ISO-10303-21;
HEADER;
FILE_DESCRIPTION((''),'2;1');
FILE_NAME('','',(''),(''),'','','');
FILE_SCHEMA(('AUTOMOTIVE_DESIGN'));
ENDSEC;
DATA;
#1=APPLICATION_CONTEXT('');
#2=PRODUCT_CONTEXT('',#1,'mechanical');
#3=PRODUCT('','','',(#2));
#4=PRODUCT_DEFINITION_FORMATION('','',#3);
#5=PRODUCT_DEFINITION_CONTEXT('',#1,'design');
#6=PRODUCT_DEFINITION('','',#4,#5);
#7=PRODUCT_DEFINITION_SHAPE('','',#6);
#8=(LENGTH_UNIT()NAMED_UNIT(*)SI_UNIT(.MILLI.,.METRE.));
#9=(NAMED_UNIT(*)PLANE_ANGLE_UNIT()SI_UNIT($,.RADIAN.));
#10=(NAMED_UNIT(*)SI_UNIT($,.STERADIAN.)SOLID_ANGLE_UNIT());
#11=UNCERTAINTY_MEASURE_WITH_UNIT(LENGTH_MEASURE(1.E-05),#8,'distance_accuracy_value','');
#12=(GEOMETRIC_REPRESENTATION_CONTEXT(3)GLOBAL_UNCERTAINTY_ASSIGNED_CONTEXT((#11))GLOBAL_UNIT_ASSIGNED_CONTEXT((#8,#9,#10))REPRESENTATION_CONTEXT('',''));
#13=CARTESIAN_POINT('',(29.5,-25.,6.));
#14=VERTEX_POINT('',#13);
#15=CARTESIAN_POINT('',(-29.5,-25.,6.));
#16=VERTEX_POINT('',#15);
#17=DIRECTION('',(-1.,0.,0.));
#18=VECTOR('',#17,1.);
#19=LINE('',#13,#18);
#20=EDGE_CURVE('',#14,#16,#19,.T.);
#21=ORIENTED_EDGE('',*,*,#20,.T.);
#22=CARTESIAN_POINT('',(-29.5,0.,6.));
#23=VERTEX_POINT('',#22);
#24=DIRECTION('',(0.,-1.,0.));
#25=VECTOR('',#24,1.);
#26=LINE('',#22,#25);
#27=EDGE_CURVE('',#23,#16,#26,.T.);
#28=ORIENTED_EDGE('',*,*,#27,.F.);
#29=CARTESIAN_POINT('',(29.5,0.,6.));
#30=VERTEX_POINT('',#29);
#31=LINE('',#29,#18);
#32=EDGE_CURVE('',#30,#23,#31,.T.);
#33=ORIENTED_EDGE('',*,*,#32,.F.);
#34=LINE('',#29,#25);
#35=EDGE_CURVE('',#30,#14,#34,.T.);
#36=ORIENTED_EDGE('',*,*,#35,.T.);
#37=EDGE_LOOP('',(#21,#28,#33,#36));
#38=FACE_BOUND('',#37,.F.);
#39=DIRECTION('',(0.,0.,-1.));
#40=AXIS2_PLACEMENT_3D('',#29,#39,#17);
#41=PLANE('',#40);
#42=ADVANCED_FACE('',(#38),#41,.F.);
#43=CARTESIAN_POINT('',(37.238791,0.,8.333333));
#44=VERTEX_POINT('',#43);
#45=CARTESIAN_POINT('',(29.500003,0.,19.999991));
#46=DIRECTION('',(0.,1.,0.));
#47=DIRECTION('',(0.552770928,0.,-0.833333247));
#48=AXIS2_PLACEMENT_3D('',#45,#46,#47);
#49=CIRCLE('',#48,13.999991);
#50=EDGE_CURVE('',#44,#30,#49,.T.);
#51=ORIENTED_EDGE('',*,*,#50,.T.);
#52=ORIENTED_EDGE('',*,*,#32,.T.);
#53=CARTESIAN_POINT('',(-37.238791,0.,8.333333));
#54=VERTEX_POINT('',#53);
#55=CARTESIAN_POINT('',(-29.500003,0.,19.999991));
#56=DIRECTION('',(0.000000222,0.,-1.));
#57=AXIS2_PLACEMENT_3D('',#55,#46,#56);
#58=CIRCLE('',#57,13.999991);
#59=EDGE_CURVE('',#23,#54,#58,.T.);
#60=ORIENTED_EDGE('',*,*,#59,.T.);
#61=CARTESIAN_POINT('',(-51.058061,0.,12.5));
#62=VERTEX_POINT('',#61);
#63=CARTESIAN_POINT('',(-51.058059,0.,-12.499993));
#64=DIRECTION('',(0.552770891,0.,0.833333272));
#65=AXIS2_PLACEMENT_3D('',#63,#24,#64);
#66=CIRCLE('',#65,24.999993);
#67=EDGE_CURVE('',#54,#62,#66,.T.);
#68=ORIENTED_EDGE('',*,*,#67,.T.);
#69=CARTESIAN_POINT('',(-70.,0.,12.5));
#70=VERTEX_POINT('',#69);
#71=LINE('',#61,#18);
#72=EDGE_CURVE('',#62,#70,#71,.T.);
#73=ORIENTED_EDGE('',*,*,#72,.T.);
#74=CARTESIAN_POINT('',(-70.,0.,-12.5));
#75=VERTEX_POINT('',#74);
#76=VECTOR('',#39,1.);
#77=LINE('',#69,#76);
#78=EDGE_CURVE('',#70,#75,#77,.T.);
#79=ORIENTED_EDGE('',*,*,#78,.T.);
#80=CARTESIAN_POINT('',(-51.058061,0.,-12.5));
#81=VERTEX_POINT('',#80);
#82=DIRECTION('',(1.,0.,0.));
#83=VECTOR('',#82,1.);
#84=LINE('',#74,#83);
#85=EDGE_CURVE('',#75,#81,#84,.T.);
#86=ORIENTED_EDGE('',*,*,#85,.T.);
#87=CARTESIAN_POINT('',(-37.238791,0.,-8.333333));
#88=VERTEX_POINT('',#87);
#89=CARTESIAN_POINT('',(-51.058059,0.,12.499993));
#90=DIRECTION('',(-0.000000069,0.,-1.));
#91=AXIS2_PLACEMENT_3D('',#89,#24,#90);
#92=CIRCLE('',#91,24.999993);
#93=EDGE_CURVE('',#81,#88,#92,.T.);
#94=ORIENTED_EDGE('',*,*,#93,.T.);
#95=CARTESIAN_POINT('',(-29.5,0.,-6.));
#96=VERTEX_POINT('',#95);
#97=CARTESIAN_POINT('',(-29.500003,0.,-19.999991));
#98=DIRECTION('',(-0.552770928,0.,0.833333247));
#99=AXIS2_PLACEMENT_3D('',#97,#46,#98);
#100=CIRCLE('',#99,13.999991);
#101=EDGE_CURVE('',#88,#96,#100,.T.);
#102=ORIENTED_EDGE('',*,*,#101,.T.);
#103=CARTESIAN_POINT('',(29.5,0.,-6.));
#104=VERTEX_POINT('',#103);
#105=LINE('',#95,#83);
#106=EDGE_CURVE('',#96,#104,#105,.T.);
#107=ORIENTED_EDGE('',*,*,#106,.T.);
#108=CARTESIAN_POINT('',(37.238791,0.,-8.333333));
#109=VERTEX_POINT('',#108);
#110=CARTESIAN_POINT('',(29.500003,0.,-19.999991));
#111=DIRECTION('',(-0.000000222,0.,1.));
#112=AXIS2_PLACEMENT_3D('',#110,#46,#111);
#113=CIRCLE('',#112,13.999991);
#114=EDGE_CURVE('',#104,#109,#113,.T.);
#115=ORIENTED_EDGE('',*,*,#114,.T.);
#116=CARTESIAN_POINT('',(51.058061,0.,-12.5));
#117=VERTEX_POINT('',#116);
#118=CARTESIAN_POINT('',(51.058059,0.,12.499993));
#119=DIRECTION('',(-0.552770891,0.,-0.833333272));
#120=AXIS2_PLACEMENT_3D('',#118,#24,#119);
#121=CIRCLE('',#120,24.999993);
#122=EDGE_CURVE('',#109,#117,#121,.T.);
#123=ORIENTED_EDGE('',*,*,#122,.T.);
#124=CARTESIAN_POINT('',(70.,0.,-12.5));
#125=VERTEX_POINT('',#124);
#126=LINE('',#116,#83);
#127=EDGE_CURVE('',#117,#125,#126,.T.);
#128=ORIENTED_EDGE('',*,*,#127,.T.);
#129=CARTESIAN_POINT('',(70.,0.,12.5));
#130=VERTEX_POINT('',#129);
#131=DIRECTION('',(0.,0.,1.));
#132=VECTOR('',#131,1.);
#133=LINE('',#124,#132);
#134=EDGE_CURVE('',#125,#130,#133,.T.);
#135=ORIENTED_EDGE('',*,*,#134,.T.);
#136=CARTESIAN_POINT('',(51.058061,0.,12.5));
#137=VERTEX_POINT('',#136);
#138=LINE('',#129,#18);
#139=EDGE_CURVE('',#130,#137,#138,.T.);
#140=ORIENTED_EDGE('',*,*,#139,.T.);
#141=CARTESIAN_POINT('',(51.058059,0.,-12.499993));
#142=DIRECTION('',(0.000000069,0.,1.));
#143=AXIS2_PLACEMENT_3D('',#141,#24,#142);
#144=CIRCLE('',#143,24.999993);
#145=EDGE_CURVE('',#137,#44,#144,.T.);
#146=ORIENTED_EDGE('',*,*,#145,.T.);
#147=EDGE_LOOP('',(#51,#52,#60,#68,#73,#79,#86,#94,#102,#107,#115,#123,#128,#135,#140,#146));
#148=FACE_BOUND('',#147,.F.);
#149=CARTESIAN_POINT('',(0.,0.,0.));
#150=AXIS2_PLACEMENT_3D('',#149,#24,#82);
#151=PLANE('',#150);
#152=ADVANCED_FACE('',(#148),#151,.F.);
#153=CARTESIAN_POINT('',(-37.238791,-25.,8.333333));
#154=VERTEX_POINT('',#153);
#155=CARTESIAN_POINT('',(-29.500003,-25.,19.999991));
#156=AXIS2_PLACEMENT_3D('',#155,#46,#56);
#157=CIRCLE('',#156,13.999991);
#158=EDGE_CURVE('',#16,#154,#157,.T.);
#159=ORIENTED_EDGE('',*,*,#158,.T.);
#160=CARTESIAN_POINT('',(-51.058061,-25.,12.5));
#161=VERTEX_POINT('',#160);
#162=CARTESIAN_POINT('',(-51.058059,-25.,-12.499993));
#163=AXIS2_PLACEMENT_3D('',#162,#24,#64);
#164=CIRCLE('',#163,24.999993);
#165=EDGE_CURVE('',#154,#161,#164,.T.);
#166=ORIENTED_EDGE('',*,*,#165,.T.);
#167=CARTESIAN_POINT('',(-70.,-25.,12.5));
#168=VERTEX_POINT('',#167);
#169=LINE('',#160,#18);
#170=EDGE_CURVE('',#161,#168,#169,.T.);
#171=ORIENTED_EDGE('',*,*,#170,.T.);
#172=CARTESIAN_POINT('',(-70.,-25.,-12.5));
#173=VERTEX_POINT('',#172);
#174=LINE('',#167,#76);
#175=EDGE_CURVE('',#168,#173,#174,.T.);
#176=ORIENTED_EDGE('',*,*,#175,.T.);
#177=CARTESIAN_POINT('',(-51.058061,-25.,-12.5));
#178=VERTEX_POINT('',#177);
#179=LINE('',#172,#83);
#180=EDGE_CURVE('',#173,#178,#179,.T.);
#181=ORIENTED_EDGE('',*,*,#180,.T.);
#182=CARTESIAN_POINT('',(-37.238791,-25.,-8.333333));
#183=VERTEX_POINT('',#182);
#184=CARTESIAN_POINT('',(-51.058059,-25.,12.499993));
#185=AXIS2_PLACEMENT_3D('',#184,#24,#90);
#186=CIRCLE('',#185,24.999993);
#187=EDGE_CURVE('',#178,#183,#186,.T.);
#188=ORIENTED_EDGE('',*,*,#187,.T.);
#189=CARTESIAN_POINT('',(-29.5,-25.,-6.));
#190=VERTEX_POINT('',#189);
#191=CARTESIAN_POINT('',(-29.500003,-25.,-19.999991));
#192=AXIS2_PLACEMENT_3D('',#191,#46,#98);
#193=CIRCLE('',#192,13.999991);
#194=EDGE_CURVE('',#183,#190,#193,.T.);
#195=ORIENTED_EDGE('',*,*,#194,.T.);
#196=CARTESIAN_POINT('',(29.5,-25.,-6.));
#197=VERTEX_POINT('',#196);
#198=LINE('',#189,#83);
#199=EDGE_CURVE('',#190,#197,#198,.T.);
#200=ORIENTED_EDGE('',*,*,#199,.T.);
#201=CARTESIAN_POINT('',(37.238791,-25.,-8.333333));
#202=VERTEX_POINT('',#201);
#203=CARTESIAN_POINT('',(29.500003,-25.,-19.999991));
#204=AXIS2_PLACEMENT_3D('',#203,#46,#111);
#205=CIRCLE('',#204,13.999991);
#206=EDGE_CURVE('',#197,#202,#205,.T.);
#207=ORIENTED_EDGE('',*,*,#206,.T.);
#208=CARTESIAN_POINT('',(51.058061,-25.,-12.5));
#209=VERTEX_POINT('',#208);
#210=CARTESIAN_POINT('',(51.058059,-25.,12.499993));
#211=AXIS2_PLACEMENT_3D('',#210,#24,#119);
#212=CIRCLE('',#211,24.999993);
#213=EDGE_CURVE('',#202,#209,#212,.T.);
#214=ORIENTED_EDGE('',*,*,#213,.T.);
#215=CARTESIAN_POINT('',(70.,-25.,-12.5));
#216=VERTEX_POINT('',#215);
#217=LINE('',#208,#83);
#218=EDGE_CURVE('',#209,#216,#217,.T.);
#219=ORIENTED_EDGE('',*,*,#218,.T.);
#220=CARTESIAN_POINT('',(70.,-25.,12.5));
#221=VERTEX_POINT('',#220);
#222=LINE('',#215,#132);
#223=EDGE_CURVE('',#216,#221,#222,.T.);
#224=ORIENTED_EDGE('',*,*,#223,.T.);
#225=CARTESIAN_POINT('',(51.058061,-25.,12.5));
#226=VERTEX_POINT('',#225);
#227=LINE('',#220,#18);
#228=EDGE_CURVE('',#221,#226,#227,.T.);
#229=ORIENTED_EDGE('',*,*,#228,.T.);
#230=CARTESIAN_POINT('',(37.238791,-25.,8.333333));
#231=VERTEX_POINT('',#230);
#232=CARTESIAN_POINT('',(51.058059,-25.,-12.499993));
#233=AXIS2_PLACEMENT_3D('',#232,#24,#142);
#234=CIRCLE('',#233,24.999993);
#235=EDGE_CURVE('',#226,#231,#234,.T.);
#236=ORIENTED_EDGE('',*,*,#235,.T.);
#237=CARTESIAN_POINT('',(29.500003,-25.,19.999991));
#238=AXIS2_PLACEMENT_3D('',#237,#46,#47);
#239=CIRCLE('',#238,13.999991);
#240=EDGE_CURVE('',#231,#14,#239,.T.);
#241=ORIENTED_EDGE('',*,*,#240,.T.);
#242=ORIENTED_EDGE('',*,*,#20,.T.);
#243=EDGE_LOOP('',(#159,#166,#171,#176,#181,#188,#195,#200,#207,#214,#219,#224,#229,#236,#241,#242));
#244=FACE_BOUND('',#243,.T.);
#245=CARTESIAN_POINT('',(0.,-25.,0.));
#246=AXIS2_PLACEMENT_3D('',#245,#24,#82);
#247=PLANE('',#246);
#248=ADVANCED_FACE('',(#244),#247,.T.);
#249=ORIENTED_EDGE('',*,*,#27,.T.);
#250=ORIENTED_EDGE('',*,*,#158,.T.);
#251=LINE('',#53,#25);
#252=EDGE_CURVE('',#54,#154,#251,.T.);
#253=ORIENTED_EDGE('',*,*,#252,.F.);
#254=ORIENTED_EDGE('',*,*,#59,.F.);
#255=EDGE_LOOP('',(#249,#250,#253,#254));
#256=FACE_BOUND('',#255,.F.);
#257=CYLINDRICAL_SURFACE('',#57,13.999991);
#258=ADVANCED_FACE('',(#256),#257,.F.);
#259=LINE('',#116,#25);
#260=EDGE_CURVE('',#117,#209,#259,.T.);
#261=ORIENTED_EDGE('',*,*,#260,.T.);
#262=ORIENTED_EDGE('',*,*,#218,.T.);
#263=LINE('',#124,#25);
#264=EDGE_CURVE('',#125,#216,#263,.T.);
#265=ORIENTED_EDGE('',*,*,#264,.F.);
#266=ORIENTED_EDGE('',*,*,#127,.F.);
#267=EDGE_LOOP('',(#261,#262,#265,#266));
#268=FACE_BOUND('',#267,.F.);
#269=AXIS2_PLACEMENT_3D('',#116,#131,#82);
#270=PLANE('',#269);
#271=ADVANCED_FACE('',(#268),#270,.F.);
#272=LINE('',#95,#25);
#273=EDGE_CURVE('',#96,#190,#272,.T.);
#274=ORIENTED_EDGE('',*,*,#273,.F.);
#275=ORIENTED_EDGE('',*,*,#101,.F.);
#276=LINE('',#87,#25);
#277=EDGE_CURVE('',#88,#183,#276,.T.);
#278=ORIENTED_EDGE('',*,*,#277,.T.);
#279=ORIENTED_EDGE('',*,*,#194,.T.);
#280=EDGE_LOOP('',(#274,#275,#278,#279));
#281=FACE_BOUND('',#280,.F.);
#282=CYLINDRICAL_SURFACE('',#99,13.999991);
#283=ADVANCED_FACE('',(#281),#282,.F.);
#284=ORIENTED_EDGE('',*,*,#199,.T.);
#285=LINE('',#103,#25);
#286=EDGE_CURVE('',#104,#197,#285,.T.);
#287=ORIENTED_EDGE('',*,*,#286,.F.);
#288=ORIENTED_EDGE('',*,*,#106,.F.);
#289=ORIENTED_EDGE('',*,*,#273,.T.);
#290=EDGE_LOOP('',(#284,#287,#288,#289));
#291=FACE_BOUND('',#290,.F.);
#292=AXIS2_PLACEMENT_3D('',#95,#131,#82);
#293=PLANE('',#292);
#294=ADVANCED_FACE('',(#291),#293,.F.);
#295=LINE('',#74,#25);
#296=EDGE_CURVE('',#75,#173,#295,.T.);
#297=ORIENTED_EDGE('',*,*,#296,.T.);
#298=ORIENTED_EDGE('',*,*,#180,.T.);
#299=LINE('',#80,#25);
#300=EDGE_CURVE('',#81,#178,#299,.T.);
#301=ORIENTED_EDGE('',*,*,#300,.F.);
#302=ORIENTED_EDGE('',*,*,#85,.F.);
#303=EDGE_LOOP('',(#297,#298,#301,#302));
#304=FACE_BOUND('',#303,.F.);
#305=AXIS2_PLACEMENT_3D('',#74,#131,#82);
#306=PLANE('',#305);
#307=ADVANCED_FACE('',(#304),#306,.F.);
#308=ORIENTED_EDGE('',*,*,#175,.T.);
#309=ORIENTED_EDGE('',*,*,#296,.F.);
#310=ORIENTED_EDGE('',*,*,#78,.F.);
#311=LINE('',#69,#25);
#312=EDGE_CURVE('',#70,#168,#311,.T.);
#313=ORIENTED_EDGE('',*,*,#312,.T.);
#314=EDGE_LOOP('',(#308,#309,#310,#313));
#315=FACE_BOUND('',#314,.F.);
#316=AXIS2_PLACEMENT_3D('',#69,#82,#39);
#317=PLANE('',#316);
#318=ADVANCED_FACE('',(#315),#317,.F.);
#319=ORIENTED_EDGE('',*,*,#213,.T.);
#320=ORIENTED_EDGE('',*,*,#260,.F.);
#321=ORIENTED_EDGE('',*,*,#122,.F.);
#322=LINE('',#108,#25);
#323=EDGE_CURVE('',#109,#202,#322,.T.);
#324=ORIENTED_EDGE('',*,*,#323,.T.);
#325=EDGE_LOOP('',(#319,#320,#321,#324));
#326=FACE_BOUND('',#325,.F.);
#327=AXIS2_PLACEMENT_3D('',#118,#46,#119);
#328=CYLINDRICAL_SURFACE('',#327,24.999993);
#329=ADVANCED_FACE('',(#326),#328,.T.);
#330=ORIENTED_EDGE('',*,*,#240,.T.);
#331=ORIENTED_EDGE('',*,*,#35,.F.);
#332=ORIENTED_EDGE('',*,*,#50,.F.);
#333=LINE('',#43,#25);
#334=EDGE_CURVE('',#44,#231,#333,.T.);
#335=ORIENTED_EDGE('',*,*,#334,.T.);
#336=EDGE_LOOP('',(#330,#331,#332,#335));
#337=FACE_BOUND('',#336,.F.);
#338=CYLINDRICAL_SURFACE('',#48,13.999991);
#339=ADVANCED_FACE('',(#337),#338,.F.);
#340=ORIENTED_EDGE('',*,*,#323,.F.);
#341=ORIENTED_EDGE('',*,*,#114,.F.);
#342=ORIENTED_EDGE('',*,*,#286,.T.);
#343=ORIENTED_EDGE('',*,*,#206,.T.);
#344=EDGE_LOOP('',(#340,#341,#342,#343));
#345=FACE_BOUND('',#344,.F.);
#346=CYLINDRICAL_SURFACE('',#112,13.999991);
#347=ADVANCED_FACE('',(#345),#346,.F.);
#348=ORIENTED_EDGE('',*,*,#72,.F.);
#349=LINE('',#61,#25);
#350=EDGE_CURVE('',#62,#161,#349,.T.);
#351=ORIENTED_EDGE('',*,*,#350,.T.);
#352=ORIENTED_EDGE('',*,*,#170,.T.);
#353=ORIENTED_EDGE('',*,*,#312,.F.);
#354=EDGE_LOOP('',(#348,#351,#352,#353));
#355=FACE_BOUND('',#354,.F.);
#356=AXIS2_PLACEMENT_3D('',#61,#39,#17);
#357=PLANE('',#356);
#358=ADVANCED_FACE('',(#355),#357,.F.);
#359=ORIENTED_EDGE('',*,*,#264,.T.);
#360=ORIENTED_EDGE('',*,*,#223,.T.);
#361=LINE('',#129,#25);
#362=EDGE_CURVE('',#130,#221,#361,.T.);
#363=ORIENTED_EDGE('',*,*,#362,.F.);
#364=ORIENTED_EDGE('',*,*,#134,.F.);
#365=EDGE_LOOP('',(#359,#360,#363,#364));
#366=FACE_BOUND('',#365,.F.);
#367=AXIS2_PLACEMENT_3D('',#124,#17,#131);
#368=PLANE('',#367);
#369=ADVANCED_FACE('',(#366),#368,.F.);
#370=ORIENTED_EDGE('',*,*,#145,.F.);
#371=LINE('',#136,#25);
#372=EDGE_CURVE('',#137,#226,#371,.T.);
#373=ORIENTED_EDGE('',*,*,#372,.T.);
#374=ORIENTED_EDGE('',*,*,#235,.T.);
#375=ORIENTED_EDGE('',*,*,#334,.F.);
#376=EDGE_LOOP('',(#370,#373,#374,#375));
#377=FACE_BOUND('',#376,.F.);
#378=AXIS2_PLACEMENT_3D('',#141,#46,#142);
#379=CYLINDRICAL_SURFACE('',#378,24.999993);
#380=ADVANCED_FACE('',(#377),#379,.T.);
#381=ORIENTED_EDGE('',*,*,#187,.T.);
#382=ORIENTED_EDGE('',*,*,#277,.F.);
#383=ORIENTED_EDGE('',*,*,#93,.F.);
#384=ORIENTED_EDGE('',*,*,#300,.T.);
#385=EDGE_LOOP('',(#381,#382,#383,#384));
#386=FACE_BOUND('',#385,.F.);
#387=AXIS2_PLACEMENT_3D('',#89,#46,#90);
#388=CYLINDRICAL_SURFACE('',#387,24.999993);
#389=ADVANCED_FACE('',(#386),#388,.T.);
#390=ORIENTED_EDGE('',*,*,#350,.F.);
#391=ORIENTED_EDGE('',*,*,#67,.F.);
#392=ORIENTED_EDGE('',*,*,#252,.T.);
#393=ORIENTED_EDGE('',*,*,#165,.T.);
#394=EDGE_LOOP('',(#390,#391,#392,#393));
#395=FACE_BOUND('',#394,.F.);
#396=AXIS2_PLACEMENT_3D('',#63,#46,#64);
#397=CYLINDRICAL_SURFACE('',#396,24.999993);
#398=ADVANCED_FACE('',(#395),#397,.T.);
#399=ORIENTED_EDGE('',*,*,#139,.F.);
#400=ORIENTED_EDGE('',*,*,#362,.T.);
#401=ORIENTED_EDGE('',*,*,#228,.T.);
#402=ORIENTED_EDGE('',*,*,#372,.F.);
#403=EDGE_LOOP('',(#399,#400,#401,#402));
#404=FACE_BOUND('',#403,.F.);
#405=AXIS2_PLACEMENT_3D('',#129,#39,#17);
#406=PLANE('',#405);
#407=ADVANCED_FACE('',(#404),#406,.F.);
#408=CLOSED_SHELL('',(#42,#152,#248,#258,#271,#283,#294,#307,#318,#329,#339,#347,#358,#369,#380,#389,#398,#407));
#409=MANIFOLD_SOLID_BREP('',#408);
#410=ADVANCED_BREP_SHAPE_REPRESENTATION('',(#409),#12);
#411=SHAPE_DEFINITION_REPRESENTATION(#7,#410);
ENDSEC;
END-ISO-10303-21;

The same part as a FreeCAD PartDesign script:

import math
import FreeCAD as App
import Part
import Sketcher

V = App.Vector
Q = App.Units.Quantity

doc = App.newDocument("Part")
body = doc.addObject("PartDesign::Body", "Body")

sketch1 = doc.addObject("Sketcher::SketchObject", "Sketch")
body.addObject(sketch1)
sketch1.AttachmentSupport = (doc.XZ_Plane, [""])
sketch1.MapMode = "FlatFace"
sketch1.addGeometry([
    Part.LineSegment(V(-30, -6, 0), V(30, -6, 0)),
    Part.ArcOfCircle(Part.Circle(V(30, -20, 0), V(0, 0, 1), 14), math.radians(56), math.radians(90)),
    Part.ArcOfCircle(Part.Circle(V(51, 12, 0), V(0, 0, 1), 25), math.radians(-124), math.radians(-90)),
    Part.LineSegment(V(51, -12, 0), V(70, -12, 0)),
    Part.LineSegment(V(70, -12, 0), V(70, 12, 0)),
    Part.LineSegment(V(70, 12, 0), V(51, 12, 0)),
    Part.ArcOfCircle(Part.Circle(V(51, -12, 0), V(0, 0, 1), 25), math.radians(90), math.radians(124)),
    Part.ArcOfCircle(Part.Circle(V(30, 20, 0), V(0, 0, 1), 14), math.radians(-90), math.radians(-56)),
    Part.LineSegment(V(30, 6, 0), V(-30, 6, 0)),
    Part.ArcOfCircle(Part.Circle(V(-30, 20, 0), V(0, 0, 1), 14), math.radians(-124), math.radians(-90)),
    Part.ArcOfCircle(Part.Circle(V(-51, -12, 0), V(0, 0, 1), 25), math.radians(56), math.radians(90)),
    Part.LineSegment(V(-51, 12, 0), V(-70, 12, 0)),
    Part.LineSegment(V(-70, 12, 0), V(-70, -12, 0)),
    Part.LineSegment(V(-70, -12, 0), V(-51, -12, 0)),
    Part.ArcOfCircle(Part.Circle(V(-51, 12, 0), V(0, 0, 1), 25), math.radians(-90), math.radians(-56)),
    Part.ArcOfCircle(Part.Circle(V(-30, -20, 0), V(0, 0, 1), 14), math.radians(90), math.radians(124)),
], False)
sketch1.addConstraint([
    Sketcher.Constraint("Tangent", 0, 2, 1, 2),
    Sketcher.Constraint("Tangent", 1, 1, 2, 1),
    Sketcher.Constraint("Tangent", 2, 2, 3, 1),
    Sketcher.Constraint("Coincident", 3, 2, 4, 1),
    Sketcher.Constraint("Coincident", 4, 2, 5, 1),
    Sketcher.Constraint("Tangent", 5, 2, 6, 1),
    Sketcher.Constraint("Tangent", 6, 2, 7, 2),
    Sketcher.Constraint("Tangent", 7, 1, 8, 1),
    Sketcher.Constraint("Tangent", 8, 2, 9, 2),
    Sketcher.Constraint("Tangent", 9, 1, 10, 1),
    Sketcher.Constraint("Tangent", 10, 2, 11, 1),
    Sketcher.Constraint("Coincident", 11, 2, 12, 1),
    Sketcher.Constraint("Coincident", 12, 2, 13, 1),
    Sketcher.Constraint("Tangent", 13, 2, 14, 1),
    Sketcher.Constraint("Tangent", 14, 2, 15, 2),
    Sketcher.Constraint("Tangent", 15, 1, 0, 1),
    Sketcher.Constraint("Horizontal", 0),
    Sketcher.Constraint("Horizontal", 3),
    Sketcher.Constraint("Vertical", 4),
    Sketcher.Constraint("Horizontal", 5),
    Sketcher.Constraint("Horizontal", 8),
    Sketcher.Constraint("Horizontal", 11),
    Sketcher.Constraint("Vertical", 12),
    Sketcher.Constraint("Horizontal", 13),
    Sketcher.Constraint("Coincident", 2, 2, 6, 3),
    Sketcher.Constraint("Coincident", 10, 2, 14, 3),
    Sketcher.Constraint("Equal", 2, 6),
    Sketcher.Constraint("Equal", 1, 7),
    Sketcher.Constraint("Equal", 7, 9),
    Sketcher.Constraint("Equal", 6, 10),
    Sketcher.Constraint("Equal", 10, 14),
    Sketcher.Constraint("Equal", 9, 15),
    Sketcher.Constraint("Symmetric", 1, 3, 9, 3, -1, 1),
    Sketcher.Constraint("Symmetric", 3, 2, 11, 2, -1, 1),
    Sketcher.Constraint("Horizontal", 6, 3, 10, 3),
    Sketcher.Constraint("DistanceX", 0, 1, 0, 2, Q("59 mm")),
    Sketcher.Constraint("DistanceY", 4, 1, 4, 2, Q("25 mm")),
    Sketcher.Constraint("DistanceY", 0, 2, -1, 1, Q("6 mm")),
    Sketcher.Constraint("DistanceX", -1, 1, 3, 2, Q("70 mm")),
    Sketcher.Constraint("DistanceY", 1, 3, 6, 3, Q("7.499998 mm")),
])
pad1 = doc.addObject("PartDesign::Pad", "Pad")
body.addObject(pad1)
pad1.Profile = sketch1
pad1.Length = 25

doc.recompute()
